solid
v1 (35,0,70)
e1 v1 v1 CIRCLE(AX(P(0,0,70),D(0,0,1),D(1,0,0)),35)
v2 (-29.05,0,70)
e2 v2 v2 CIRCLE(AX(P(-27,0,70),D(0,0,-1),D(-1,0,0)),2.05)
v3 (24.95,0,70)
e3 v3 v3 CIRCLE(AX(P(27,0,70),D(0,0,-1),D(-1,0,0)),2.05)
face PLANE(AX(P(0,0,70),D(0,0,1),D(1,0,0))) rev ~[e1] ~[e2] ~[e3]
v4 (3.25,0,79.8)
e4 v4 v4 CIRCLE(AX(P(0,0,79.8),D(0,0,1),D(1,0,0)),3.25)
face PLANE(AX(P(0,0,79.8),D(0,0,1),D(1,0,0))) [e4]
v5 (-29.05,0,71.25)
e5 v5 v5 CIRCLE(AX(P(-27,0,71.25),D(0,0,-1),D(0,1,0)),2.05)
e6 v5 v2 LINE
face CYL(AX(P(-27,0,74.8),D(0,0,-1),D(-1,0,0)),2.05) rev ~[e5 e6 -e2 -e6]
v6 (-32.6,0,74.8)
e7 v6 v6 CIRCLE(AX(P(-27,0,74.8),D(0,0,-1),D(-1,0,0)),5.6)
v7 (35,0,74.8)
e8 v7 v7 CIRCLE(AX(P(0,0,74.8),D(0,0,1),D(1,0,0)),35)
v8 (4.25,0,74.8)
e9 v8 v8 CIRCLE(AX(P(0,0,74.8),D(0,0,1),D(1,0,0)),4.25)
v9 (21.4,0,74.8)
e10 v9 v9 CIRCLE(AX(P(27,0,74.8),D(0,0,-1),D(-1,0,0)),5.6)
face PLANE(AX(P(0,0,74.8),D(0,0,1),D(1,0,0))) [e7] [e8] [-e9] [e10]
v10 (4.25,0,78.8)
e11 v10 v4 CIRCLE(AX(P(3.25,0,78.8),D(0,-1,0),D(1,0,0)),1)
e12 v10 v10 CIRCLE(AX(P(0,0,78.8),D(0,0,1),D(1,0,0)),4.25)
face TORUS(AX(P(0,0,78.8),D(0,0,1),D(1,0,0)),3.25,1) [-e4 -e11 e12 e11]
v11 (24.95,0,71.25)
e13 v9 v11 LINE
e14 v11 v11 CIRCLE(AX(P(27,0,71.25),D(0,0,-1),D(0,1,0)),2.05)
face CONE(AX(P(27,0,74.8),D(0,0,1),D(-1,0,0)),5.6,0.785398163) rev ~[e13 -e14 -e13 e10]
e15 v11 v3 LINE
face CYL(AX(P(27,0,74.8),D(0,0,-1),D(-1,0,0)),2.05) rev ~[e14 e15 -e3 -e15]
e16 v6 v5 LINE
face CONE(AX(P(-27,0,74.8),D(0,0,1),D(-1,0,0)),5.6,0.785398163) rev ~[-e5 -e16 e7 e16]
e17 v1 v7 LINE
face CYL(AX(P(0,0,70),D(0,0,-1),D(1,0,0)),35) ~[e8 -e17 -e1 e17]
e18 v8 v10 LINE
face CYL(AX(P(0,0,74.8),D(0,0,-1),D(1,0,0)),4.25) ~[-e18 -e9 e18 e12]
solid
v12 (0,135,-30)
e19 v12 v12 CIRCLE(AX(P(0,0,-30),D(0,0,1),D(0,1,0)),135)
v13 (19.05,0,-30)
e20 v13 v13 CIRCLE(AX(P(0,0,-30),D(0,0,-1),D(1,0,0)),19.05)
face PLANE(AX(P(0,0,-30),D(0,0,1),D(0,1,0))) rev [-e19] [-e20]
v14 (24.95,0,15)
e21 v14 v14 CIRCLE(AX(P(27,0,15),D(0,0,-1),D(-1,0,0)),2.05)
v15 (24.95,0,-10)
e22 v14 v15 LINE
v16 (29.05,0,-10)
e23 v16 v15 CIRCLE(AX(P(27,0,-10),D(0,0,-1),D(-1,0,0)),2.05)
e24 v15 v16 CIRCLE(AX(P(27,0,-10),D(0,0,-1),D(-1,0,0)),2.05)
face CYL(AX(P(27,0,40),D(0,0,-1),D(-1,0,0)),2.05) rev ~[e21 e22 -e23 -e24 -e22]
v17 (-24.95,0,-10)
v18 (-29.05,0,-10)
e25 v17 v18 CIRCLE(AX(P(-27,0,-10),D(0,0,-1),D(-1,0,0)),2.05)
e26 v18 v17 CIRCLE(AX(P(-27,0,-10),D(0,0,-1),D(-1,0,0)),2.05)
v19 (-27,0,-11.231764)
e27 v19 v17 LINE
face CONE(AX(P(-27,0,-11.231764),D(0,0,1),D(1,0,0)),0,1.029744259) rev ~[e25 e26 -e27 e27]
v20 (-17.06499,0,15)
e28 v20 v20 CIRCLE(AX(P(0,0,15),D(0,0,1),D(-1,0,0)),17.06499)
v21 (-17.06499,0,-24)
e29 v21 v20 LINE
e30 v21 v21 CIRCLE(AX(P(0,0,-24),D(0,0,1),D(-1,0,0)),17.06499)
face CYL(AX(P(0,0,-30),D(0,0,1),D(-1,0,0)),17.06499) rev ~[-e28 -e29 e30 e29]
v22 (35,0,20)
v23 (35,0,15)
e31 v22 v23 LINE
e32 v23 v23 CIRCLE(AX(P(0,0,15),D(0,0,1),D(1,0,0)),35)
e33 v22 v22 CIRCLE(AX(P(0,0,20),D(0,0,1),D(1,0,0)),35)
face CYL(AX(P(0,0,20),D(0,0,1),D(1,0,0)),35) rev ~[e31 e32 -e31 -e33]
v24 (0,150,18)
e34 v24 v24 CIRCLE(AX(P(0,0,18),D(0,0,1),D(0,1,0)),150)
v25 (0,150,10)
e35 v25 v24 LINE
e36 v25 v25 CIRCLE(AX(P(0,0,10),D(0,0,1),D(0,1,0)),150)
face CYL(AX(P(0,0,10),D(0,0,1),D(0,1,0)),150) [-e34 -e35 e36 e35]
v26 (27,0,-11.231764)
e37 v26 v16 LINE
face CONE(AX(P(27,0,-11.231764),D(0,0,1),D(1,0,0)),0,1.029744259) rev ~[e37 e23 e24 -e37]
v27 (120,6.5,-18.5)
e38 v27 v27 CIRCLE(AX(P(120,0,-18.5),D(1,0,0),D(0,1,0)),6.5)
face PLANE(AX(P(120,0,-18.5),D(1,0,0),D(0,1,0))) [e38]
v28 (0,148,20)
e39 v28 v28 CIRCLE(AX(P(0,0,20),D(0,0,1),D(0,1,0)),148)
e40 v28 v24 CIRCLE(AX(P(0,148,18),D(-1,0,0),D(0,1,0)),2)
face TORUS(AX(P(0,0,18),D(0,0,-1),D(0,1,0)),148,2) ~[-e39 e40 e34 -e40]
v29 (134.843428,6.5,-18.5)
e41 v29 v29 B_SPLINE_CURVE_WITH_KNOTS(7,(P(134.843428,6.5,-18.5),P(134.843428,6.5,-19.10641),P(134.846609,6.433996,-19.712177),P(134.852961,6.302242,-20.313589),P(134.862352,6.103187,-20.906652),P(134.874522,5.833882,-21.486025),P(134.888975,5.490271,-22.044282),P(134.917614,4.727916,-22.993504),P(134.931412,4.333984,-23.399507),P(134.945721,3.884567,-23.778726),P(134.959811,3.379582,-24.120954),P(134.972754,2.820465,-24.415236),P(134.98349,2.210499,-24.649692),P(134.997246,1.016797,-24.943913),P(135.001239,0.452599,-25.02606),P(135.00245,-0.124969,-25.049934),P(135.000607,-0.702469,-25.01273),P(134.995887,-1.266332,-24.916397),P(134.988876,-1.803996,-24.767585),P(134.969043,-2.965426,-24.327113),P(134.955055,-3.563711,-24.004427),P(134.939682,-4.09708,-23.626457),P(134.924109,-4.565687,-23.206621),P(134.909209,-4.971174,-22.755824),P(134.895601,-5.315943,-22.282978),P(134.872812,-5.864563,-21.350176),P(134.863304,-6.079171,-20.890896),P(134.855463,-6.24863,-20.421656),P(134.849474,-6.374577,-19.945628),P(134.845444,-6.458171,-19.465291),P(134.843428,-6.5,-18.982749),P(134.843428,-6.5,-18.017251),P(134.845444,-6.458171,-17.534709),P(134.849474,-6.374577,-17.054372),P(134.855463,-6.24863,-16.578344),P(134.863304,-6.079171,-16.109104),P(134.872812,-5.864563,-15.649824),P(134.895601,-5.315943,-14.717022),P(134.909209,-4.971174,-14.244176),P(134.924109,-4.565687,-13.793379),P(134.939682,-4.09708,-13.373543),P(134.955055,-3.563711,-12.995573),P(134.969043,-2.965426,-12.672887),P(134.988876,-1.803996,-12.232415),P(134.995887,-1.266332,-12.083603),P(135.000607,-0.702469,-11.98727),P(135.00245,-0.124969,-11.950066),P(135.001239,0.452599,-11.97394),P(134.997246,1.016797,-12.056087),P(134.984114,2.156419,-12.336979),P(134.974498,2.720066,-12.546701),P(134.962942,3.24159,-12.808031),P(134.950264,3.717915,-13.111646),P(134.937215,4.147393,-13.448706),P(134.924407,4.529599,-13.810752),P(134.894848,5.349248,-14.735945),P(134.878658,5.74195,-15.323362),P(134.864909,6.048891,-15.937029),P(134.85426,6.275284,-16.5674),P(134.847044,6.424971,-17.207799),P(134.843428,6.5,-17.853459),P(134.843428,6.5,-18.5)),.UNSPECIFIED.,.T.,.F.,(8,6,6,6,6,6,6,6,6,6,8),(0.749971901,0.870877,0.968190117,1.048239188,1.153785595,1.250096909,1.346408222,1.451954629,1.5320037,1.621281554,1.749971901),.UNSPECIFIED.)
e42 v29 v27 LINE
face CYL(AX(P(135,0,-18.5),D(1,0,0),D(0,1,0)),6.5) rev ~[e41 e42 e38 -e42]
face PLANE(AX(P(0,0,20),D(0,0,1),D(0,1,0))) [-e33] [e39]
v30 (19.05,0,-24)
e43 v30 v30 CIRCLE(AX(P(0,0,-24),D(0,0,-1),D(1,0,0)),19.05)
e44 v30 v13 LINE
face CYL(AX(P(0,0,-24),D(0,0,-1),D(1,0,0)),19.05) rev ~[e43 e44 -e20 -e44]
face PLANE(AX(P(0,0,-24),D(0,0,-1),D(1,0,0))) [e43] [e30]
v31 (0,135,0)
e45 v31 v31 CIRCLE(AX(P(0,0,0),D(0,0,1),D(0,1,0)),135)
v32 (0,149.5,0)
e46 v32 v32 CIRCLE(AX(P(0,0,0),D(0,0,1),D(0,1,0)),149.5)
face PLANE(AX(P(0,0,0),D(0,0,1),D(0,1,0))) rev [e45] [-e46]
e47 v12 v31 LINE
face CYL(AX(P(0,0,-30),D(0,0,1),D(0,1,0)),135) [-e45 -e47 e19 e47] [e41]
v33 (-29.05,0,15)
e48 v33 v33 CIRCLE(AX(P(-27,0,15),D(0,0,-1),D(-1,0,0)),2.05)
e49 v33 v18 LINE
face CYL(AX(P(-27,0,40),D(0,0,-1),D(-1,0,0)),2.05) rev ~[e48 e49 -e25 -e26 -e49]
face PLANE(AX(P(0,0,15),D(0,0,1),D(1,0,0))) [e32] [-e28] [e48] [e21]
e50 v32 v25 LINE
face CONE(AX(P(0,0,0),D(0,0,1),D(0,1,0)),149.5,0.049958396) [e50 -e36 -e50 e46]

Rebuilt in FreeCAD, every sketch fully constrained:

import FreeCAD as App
import Part
import Sketcher


def edges_at(feature, points):
    """Names of the edges that pass closest to the given points."""
    edges = feature.Shape.Edges
    near = lambda p: min(range(len(edges)), key=lambda i: edges[i].distToShape(Part.Vertex(*p))[0])
    return sorted({f"Edge{near(p) + 1}" for p in points})


def add_polygon(sketch, points):
    """Adds a closed chain of lines whose ends are joined by coincident constraints."""
    first, n = sketch.GeometryCount, len(points)
    for a, b in zip(points, points[1:] + points[:1]):
        sketch.addGeometry(Part.LineSegment(App.Vector(*a, 0), App.Vector(*b, 0)), False)
    for i in range(n):
        sketch.addConstraint(Sketcher.Constraint("Coincident", first + i, 2, first + (i + 1) % n, 1))

doc = App.newDocument("Part")
params = doc.addObject("Spreadsheet::Sheet", "Params")
for row, (alias, value) in enumerate([
    ("sketch1_width", "150 mm"),
    ("sketch1_width2", "135 mm"),
    ("sketch1_height", "50 mm"),
    ("sketch1_height2", "30 mm"),
    ("sketch1_height3", "10 mm"),
    ("revolution_angle", "360 deg"),
    ("hole_diameter", "34.12998 mm"),
    ("hole_cbore_diameter", "38.1 mm"),
    ("hole_cbore_depth", "6 mm"),
    ("sketch3_diameter", "13 mm"),
    ("pocket1_length", "15 mm"),
    ("fillet_radius", "2 mm"),
    ("sketch4_diameter", "70 mm"),
    ("pocket2_length", "5 mm"),
    ("sketch5_diameter", "4.1 mm"),
    ("hole2_diameter", "4.1 mm"),
    ("hole2_depth", "25 mm"),
    ("sketch6_diameter", "70 mm"),
    ("pad1_length", "4.8 mm"),
    ("sketch7_diameter", "8.5 mm"),
    ("pad2_length", "5 mm"),
    ("sketch8_diameter", "4.1 mm"),
    ("hole3_diameter", "4.1 mm"),
    ("hole3_depth", "25 mm"),
    ("hole3_csink_diameter", "11.2 mm"),
    ("fillet2_radius", "1 mm"),
], start=1):
    params.set(f"A{row}", alias)
    params.set(f"B{row}", "=" + value)
    params.setAlias(f"B{row}", alias)

body = doc.addObject("PartDesign::Body", "Body")

# Sketch on YZ plane
sketch1 = body.newObject("Sketcher::SketchObject", "Sketch")
sketch1.AttachmentSupport = (doc.getObject("YZ_Plane"), [""])
sketch1.MapMode = "FlatFace"
add_polygon(sketch1, [(150, 20), (0, 20), (0, -30), (135, -30), (135, 0), (150, 0), (150, 10)])  # lines 0-6
sketch1.addConstraint([
    Sketcher.Constraint("Horizontal", 0),
    Sketcher.Constraint("Vertical", 1),
    Sketcher.Constraint("Horizontal", 2),
    Sketcher.Constraint("Vertical", 3),
    Sketcher.Constraint("Horizontal", 4),
    Sketcher.Constraint("Vertical", 6),
    Sketcher.Constraint("PointOnObject", 0, 2, -2),
    Sketcher.Constraint("PointOnObject", 3, 2, -1),
    Sketcher.Constraint("DistanceX", 0, 2, 0, 1, 150.0),
    Sketcher.Constraint("DistanceX", 2, 1, 2, 2, 135.0),
    Sketcher.Constraint("DistanceY", 1, 2, 1, 1, 50.0),
    Sketcher.Constraint("DistanceY", 3, 1, 3, 2, 30.0),
    Sketcher.Constraint("DistanceY", 6, 1, 6, 2, 10.0),
    Sketcher.Constraint("DistanceX", 4, 1, 4, 2, 14.5),
])
sketch1.setExpression("Constraints[15]", "Params.sketch1_width")
sketch1.setExpression("Constraints[16]", "Params.sketch1_width2")
sketch1.setExpression("Constraints[17]", "Params.sketch1_height")
sketch1.setExpression("Constraints[18]", "Params.sketch1_height2")
sketch1.setExpression("Constraints[19]", "Params.sketch1_height3")
revolution = body.newObject("PartDesign::Revolution", "Revolution")
revolution.Profile = sketch1
revolution.ReferenceAxis = (sketch1, ["V_Axis"])
revolution.setExpression("Angle", "Params.revolution_angle")

# Sketch on XY plane
sketch2 = body.newObject("Sketcher::SketchObject", "Sketch001")
sketch2.AttachmentSupport = (doc.getObject("XY_Plane"), [""])
sketch2.MapMode = "FlatFace"
sketch2.AttachmentOffset = App.Placement(App.Vector(0, 0, -30), App.Rotation())
sketch2.addGeometry(Part.Circle(App.Vector(0, 0, 0), App.Vector(0, 0, 1), 17), False)
sketch2.addConstraint([
    Sketcher.Constraint("Coincident", 0, 3, -1, 1),
    Sketcher.Constraint("Diameter", 0, 34.12998),
])
doc.recompute()
hole = body.newObject("PartDesign::Hole", "Hole")
hole.Profile = sketch2
hole.ThreadType = "None"
hole.setExpression("Diameter", "Params.hole_diameter")
hole.DepthType = "ThroughAll"
hole.HoleCutType = "Counterbore"
hole.setExpression("HoleCutDiameter", "Params.hole_cbore_diameter")
hole.setExpression("HoleCutDepth", "Params.hole_cbore_depth")
hole.Reversed = True

# Sketch on YZ plane
sketch3 = body.newObject("Sketcher::SketchObject", "Sketch002")
sketch3.AttachmentSupport = (doc.getObject("YZ_Plane"), [""])
sketch3.MapMode = "FlatFace"
sketch3.AttachmentOffset = App.Placement(App.Vector(0, 0, 135), App.Rotation())
sketch3.addGeometry(Part.Circle(App.Vector(0, -18, 0), App.Vector(0, 0, 1), 6), False)
sketch3.addConstraint([
    Sketcher.Constraint("PointOnObject", 0, 3, -2),
    Sketcher.Constraint("Diameter", 0, 13.0),
    Sketcher.Constraint("DistanceY", 0, 3, -1, 1, 18.5),
])
sketch3.setExpression("Constraints[1]", "Params.sketch3_diameter")
pocket1 = body.newObject("PartDesign::Pocket", "Pocket")
pocket1.Profile = sketch3
pocket1.setExpression("Length", "Params.pocket1_length")
doc.recompute()

fillet = body.newObject("PartDesign::Fillet", "Fillet")
fillet.Base = (pocket1, edges_at(pocket1, [(0, -150, 20)]))
fillet.setExpression("Radius", "Params.fillet_radius")

# Sketch on XY plane
sketch4 = body.newObject("Sketcher::SketchObject", "Sketch003")
sketch4.AttachmentSupport = (doc.getObject("XY_Plane"), [""])
sketch4.MapMode = "FlatFace"
sketch4.AttachmentOffset = App.Placement(App.Vector(0, 0, 20), App.Rotation())
sketch4.addGeometry(Part.Circle(App.Vector(0, 0, 0), App.Vector(0, 0, 1), 35), False)
sketch4.addConstraint([
    Sketcher.Constraint("Coincident", 0, 3, -1, 1),
    Sketcher.Constraint("Diameter", 0, 70.0),
])
sketch4.setExpression("Constraints[1]", "Params.sketch4_diameter")
pocket2 = body.newObject("PartDesign::Pocket", "Pocket001")
pocket2.Profile = sketch4
pocket2.setExpression("Length", "Params.pocket2_length")

# Sketch on XY plane
sketch5 = body.newObject("Sketcher::SketchObject", "Sketch004")
sketch5.AttachmentSupport = (doc.getObject("XY_Plane"), [""])
sketch5.MapMode = "FlatFace"
sketch5.AttachmentOffset = App.Placement(App.Vector(0, 0, 15), App.Rotation())
sketch5.addGeometry([
    Part.Circle(App.Vector(-27, 0, 0), App.Vector(0, 0, 1), 2),
    Part.Circle(App.Vector(27, 0, 0), App.Vector(0, 0, 1), 2),
], False)
sketch5.addConstraint([
    Sketcher.Constraint("Equal", 0, 1),
    Sketcher.Constraint("Symmetric", 0, 3, 1, 3, -1, 1),
    Sketcher.Constraint("PointOnObject", 0, 3, -1),
    Sketcher.Constraint("Diameter", 0, 4.1),
    Sketcher.Constraint("DistanceX", 0, 3, -1, 1, 27.0),
])
sketch5.setExpression("Constraints[3]", "Params.sketch5_diameter")
doc.recompute()
hole2 = body.newObject("PartDesign::Hole", "Hole001")
hole2.Profile = sketch5
hole2.ThreadType = "None"
hole2.setExpression("Diameter", "Params.hole2_diameter")
hole2.DepthType = "Dimension"
hole2.setExpression("Depth", "Params.hole2_depth")
hole2.DrillPoint = "Angled"
hole2.DrillPointAngle = 118
body2 = doc.addObject("PartDesign::Body", "Body001")

# Sketch on XY plane
sketch6 = body2.newObject("Sketcher::SketchObject", "Sketch005")
sketch6.AttachmentSupport = (doc.getObject("XY_Plane001"), [""])
sketch6.MapMode = "FlatFace"
sketch6.AttachmentOffset = App.Placement(App.Vector(0, 0, 70), App.Rotation())
sketch6.addGeometry(Part.Circle(App.Vector(0, 0, 0), App.Vector(0, 0, 1), 35), False)
sketch6.addConstraint([
    Sketcher.Constraint("Coincident", 0, 3, -1, 1),
    Sketcher.Constraint("Diameter", 0, 70.0),
])
sketch6.setExpression("Constraints[1]", "Params.sketch6_diameter")
pad1 = body2.newObject("PartDesign::Pad", "Pad")
pad1.Profile = sketch6
pad1.setExpression("Length", "Params.pad1_length")

# Sketch on XY plane
sketch7 = body2.newObject("Sketcher::SketchObject", "Sketch006")
sketch7.AttachmentSupport = (doc.getObject("XY_Plane001"), [""])
sketch7.MapMode = "FlatFace"
sketch7.AttachmentOffset = App.Placement(App.Vector(0, 0, 74.8), App.Rotation())
sketch7.addGeometry(Part.Circle(App.Vector(0, 0, 0), App.Vector(0, 0, 1), 4.2), False)
sketch7.addConstraint([
    Sketcher.Constraint("Coincident", 0, 3, -1, 1),
    Sketcher.Constraint("Diameter", 0, 8.5),
])
sketch7.setExpression("Constraints[1]", "Params.sketch7_diameter")
pad2 = body2.newObject("PartDesign::Pad", "Pad001")
pad2.Profile = sketch7
pad2.setExpression("Length", "Params.pad2_length")

# Sketch on XY plane
sketch8 = body2.newObject("Sketcher::SketchObject", "Sketch007")
sketch8.AttachmentSupport = (doc.getObject("XY_Plane001"), [""])
sketch8.MapMode = "FlatFace"
sketch8.AttachmentOffset = App.Placement(App.Vector(0, 0, 74.8), App.Rotation())
sketch8.addGeometry([
    Part.Circle(App.Vector(-27, 0, 0), App.Vector(0, 0, 1), 2),
    Part.Circle(App.Vector(27, 0, 0), App.Vector(0, 0, 1), 2),
], False)
sketch8.addConstraint([
    Sketcher.Constraint("Equal", 0, 1),
    Sketcher.Constraint("Symmetric", 0, 3, 1, 3, -1, 1),
    Sketcher.Constraint("PointOnObject", 0, 3, -1),
    Sketcher.Constraint("Diameter", 0, 4.1),
    Sketcher.Constraint("DistanceX", 0, 3, -1, 1, 27.0),
])
sketch8.setExpression("Constraints[3]", "Params.sketch8_diameter")
doc.recompute()
hole3 = body2.newObject("PartDesign::Hole", "Hole002")
hole3.Profile = sketch8
hole3.ThreadType = "None"
hole3.setExpression("Diameter", "Params.hole3_diameter")
hole3.DepthType = "Dimension"
hole3.setExpression("Depth", "Params.hole3_depth")
hole3.DrillPoint = "Angled"
hole3.DrillPointAngle = 118
hole3.HoleCutType = "Countersink"
hole3.setExpression("HoleCutDiameter", "Params.hole3_csink_diameter")
hole3.HoleCutCountersinkAngle = 90
doc.recompute()

fillet2 = body2.newObject("PartDesign::Fillet", "Fillet001")
fillet2.Base = (hole3, edges_at(hole3, [(-4.25, 0, 79.8)]))
fillet2.setExpression("Radius", "Params.fillet2_radius")

doc.recompute()
